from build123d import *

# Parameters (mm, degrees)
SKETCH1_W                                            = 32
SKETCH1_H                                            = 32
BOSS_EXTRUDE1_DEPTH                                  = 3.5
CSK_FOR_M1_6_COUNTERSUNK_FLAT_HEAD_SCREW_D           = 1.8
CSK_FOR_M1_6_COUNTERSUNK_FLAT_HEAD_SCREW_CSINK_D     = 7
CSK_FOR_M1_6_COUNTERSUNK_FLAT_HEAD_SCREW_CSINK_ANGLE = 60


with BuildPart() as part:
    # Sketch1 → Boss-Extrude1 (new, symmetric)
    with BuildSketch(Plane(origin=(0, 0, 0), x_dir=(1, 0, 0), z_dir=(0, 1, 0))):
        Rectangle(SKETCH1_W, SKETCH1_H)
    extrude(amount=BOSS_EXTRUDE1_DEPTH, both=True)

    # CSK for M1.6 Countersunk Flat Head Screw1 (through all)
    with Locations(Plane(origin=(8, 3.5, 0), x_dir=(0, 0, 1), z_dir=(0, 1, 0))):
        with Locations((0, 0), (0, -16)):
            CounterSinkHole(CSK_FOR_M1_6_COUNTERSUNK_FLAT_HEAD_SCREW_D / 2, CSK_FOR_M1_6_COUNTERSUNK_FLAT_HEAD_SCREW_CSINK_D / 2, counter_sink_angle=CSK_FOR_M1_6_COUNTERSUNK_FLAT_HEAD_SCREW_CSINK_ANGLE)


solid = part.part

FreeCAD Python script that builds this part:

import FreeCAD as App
import Part
import Sketcher
from FreeCAD import Vector
Q = App.Units.Quantity

doc = App.newDocument("Part")
params = doc.addObject("Spreadsheet::Sheet", "Params")
for row, (alias, value) in enumerate([
    ("sketch1_width", "32 mm"),
    ("pad1_length", "7 mm"),
    ("sketch2_diameter", "1.8 mm"),
    ("hole_diameter", "1.8 mm"),
    ("hole_csink_diameter", "7 mm"),
], start=1):
    params.set(f"A{row}", alias)
    params.set(f"B{row}", "=" + value)
    params.setAlias(f"B{row}", alias)

body = doc.addObject("PartDesign::Body", "Body")

# Sketch on XZ plane
sketch1 = body.newObject("Sketcher::SketchObject", "Sketch")
sketch1.AttachmentSupport = (doc.getObject("XZ_Plane"), [""])
sketch1.MapMode = "FlatFace"
sketch1.addGeometry(Part.LineSegment(Vector(-16, -16, 0), Vector(-16, 16, 0)), False)
sketch1.addGeometry(Part.LineSegment(Vector(-16, 16, 0), Vector(16, 16, 0)), False)
sketch1.addGeometry(Part.LineSegment(Vector(16, 16, 0), Vector(16, -16, 0)), False)
sketch1.addGeometry(Part.LineSegment(Vector(16, -16, 0), Vector(-16, -16, 0)), False)
sketch1.addConstraint(Sketcher.Constraint("Coincident", 0, 2, 1, 1))
sketch1.addConstraint(Sketcher.Constraint("Coincident", 1, 2, 2, 1))
sketch1.addConstraint(Sketcher.Constraint("Coincident", 2, 2, 3, 1))
sketch1.addConstraint(Sketcher.Constraint("Coincident", 3, 2, 0, 1))
sketch1.addConstraint(Sketcher.Constraint("Vertical", 0))
sketch1.addConstraint(Sketcher.Constraint("Horizontal", 1))
sketch1.addConstraint(Sketcher.Constraint("Vertical", 2))
sketch1.addConstraint(Sketcher.Constraint("Horizontal", 3))
sketch1.addConstraint(Sketcher.Constraint("Symmetric", 0, 2, 2, 2, -1, 1))
sketch1.addConstraint(Sketcher.Constraint("Equal", 3, 0))
sketch1.addConstraint(Sketcher.Constraint("DistanceX", 1, 1, 1, 2, Q("32 mm")))
sketch1.setExpression("Constraints[10]", "Params.sketch1_width")
pad1 = body.newObject("PartDesign::Pad", "Pad")
pad1.Profile = sketch1
pad1.setExpression("Length", "Params.pad1_length")
pad1.Midplane = True

# Sketch on XZ plane
sketch2 = body.newObject("Sketcher::SketchObject", "Sketch001")
sketch2.AttachmentSupport = (doc.getObject("XZ_Plane"), [""])
sketch2.MapMode = "FlatFace"
sketch2.AttachmentOffset = App.Placement(Vector(0, 0, -3.5), App.Rotation())
sketch2.addGeometry(Part.Circle(Vector(8, 0, 0), Vector(0, 0, 1), 0.9), False)
sketch2.addGeometry(Part.Circle(Vector(-8, 0, 0), Vector(0, 0, 1), 0.9), False)
sketch2.addConstraint(Sketcher.Constraint("Equal", 0, 1))
sketch2.addConstraint(Sketcher.Constraint("Symmetric", 0, 3, 1, 3, -1, 1))
sketch2.addConstraint(Sketcher.Constraint("PointOnObject", 0, 3, -1))
sketch2.addConstraint(Sketcher.Constraint("Diameter", 0, Q("1.8 mm")))
sketch2.addConstraint(Sketcher.Constraint("DistanceX", -1, 1, 0, 3, Q("8 mm")))
sketch2.setExpression("Constraints[3]", "Params.sketch2_diameter")
doc.recompute()
hole = body.newObject("PartDesign::Hole", "Hole")
hole.Profile = sketch2
hole.ThreadType = "None"
hole.setExpression("Diameter", "Params.hole_diameter")
hole.DepthType = "ThroughAll"
hole.HoleCutType = "Countersink"
hole.setExpression("HoleCutDiameter", "Params.hole_csink_diameter")
hole.HoleCutCountersinkAngle = 60
hole.Reversed = True

doc.recompute()
